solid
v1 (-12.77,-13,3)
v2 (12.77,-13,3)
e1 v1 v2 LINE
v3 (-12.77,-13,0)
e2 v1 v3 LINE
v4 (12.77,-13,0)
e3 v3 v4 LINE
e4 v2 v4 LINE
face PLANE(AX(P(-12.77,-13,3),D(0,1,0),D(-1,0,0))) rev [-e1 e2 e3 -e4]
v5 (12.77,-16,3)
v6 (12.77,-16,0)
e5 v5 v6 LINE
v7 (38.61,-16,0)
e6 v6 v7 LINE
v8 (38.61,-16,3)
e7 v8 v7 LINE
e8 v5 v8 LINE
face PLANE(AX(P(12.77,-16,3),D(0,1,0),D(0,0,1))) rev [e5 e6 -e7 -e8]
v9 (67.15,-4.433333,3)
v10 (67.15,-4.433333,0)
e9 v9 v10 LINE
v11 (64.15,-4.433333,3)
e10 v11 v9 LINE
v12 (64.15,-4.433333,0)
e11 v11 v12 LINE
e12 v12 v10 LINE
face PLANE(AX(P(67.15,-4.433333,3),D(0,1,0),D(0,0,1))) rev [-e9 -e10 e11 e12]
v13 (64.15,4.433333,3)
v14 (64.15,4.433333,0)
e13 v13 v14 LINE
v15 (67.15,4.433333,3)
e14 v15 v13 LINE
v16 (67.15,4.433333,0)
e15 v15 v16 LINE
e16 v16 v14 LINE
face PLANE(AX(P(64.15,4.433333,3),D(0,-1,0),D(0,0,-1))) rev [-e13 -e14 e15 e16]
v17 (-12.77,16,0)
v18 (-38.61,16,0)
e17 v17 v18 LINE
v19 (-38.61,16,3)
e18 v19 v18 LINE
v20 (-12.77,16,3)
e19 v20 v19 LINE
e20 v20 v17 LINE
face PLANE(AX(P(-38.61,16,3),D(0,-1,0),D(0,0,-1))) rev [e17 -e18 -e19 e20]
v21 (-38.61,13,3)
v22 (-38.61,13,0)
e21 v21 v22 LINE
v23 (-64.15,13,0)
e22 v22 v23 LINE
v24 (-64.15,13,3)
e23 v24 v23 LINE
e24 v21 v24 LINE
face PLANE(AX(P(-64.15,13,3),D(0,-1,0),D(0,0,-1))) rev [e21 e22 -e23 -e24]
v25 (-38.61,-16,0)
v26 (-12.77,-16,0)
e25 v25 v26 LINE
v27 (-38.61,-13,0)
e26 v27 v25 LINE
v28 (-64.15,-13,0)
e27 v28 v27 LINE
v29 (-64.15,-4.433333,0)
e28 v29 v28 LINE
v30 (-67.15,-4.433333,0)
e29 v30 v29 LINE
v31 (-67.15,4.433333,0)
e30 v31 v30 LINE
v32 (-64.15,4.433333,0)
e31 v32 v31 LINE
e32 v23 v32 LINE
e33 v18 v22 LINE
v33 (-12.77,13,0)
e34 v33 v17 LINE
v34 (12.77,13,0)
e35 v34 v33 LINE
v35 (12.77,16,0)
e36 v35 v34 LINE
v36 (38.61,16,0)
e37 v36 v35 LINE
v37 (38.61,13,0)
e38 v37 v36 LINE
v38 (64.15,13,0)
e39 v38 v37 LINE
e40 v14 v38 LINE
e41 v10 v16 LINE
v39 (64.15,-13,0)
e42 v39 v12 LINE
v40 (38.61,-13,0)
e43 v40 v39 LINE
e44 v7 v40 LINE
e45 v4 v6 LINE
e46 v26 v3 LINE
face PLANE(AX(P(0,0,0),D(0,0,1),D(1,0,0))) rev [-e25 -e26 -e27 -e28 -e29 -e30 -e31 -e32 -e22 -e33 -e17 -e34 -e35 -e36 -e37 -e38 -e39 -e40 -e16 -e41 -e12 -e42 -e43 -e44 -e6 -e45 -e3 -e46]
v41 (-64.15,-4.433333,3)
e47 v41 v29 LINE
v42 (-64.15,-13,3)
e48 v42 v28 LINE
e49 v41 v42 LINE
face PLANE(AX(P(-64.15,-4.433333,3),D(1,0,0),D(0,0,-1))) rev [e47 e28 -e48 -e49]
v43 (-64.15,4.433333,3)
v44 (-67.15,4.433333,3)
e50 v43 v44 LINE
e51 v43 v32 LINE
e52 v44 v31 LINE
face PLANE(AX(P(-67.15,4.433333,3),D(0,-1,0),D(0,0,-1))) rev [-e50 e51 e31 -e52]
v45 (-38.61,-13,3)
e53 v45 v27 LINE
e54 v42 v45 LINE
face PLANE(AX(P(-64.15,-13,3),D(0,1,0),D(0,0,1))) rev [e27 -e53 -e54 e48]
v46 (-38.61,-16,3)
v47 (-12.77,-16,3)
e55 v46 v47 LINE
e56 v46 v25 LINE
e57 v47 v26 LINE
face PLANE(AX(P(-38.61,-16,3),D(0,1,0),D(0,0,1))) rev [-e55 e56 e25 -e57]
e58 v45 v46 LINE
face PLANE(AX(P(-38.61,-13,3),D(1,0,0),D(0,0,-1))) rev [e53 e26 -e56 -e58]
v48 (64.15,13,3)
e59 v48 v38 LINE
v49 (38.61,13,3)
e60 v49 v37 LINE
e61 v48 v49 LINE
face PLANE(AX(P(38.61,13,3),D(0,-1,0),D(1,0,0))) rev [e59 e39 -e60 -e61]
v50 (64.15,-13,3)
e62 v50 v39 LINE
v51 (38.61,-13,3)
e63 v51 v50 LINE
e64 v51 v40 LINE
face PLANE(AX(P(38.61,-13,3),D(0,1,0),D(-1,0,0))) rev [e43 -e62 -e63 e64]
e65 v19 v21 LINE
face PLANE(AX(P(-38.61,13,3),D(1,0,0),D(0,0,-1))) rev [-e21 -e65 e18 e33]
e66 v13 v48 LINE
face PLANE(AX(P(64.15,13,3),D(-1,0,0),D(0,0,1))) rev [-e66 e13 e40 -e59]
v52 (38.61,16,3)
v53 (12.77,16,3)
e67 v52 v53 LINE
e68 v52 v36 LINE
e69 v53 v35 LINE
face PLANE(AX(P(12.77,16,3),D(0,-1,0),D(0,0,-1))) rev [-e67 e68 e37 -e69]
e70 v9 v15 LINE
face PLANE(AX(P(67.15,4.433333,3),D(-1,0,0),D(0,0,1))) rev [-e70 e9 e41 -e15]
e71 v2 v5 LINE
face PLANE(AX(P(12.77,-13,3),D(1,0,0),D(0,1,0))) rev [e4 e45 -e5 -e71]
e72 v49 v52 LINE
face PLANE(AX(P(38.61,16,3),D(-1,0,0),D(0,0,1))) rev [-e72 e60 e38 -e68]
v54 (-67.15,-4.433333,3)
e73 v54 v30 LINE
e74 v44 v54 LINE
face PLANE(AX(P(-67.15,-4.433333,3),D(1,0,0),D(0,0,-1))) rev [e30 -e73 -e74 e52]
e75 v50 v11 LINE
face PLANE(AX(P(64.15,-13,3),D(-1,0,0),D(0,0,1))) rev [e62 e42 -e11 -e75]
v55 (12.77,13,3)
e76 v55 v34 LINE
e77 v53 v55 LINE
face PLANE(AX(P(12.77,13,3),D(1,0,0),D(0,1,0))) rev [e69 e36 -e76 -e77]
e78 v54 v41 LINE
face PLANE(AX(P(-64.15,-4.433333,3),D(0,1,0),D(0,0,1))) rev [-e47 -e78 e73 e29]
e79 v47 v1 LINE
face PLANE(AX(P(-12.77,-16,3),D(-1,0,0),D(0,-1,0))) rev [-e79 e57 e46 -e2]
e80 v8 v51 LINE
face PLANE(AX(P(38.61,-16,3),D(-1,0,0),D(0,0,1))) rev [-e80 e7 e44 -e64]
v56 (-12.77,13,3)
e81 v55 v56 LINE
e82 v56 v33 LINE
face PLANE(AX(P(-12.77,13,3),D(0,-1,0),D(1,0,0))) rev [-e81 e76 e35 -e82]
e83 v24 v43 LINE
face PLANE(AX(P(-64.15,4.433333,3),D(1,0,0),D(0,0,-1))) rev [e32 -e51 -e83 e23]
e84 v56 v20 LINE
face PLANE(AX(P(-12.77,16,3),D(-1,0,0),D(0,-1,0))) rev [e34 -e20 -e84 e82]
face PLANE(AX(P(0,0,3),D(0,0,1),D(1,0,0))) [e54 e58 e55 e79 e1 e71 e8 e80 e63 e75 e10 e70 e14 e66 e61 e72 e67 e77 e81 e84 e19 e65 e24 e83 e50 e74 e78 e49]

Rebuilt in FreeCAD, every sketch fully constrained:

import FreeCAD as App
import Part
import Sketcher

V = App.Vector

doc = App.newDocument("Part")
body = doc.addObject("PartDesign::Body", "Body")

# Sketch on XY plane
sketch1 = doc.addObject("Sketcher::SketchObject", "Sketch")
body.addObject(sketch1)
sketch1.AttachmentSupport = (doc.XY_Plane, [""])
sketch1.MapMode = "FlatFace"
sketch1.addGeometry(Part.LineSegment(V(-67.15, -4.433333, 0), V(-64.15, -4.433333, 0)), False)
sketch1.addGeometry(Part.LineSegment(V(-64.15, -4.433333, 0), V(-64.15, -13, 0)), False)
sketch1.addGeometry(Part.LineSegment(V(-64.15, -13, 0), V(-38.61, -13, 0)), False)
sketch1.addGeometry(Part.LineSegment(V(-38.61, -13, 0), V(-38.61, -16, 0)), False)
sketch1.addGeometry(Part.LineSegment(V(-38.61, -16, 0), V(-12.77, -16, 0)), False)
sketch1.addGeometry(Part.LineSegment(V(-12.77, -16, 0), V(-12.77, -13, 0)), False)
sketch1.addGeometry(Part.LineSegment(V(-12.77, -13, 0), V(12.77, -13, 0)), False)
sketch1.addGeometry(Part.LineSegment(V(12.77, -13, 0), V(12.77, -16, 0)), False)
sketch1.addGeometry(Part.LineSegment(V(12.77, -16, 0), V(38.61, -16, 0)), False)
sketch1.addGeometry(Part.LineSegment(V(38.61, -16, 0), V(38.61, -13, 0)), False)
sketch1.addGeometry(Part.LineSegment(V(38.61, -13, 0), V(64.15, -13, 0)), False)
sketch1.addGeometry(Part.LineSegment(V(64.15, -13, 0), V(64.15, -4.433333, 0)), False)
sketch1.addGeometry(Part.LineSegment(V(64.15, -4.433333, 0), V(67.15, -4.433333, 0)), False)
sketch1.addGeometry(Part.LineSegment(V(67.15, -4.433333, 0), V(67.15, 4.433333, 0)), False)
sketch1.addGeometry(Part.LineSegment(V(67.15, 4.433333, 0), V(64.15, 4.433333, 0)), False)
sketch1.addGeometry(Part.LineSegment(V(64.15, 4.433333, 0), V(64.15, 13, 0)), False)
sketch1.addGeometry(Part.LineSegment(V(64.15, 13, 0), V(38.61, 13, 0)), False)
sketch1.addGeometry(Part.LineSegment(V(38.61, 13, 0), V(38.61, 16, 0)), False)
sketch1.addGeometry(Part.LineSegment(V(38.61, 16, 0), V(12.77, 16, 0)), False)
sketch1.addGeometry(Part.LineSegment(V(12.77, 16, 0), V(12.77, 13, 0)), False)
sketch1.addGeometry(Part.LineSegment(V(12.77, 13, 0), V(-12.77, 13, 0)), False)
sketch1.addGeometry(Part.LineSegment(V(-12.77, 13, 0), V(-12.77, 16, 0)), False)
sketch1.addGeometry(Part.LineSegment(V(-12.77, 16, 0), V(-38.61, 16, 0)), False)
sketch1.addGeometry(Part.LineSegment(V(-38.61, 16, 0), V(-38.61, 13, 0)), False)
sketch1.addGeometry(Part.LineSegment(V(-38.61, 13, 0), V(-64.15, 13, 0)), False)
sketch1.addGeometry(Part.LineSegment(V(-64.15, 13, 0), V(-64.15, 4.433333, 0)), False)
sketch1.addGeometry(Part.LineSegment(V(-64.15, 4.433333, 0), V(-67.15, 4.433333, 0)), False)
sketch1.addGeometry(Part.LineSegment(V(-67.15, 4.433333, 0), V(-67.15, -4.433333, 0)), False)
sketch1.addConstraint(Sketcher.Constraint("Coincident", 0, 2, 1, 1))
sketch1.addConstraint(Sketcher.Constraint("Coincident", 1, 2, 2, 1))
sketch1.addConstraint(Sketcher.Constraint("Coincident", 2, 2, 3, 1))
sketch1.addConstraint(Sketcher.Constraint("Coincident", 3, 2, 4, 1))
sketch1.addConstraint(Sketcher.Constraint("Coincident", 4, 2, 5, 1))
sketch1.addConstraint(Sketcher.Constraint("Coincident", 5, 2, 6, 1))
sketch1.addConstraint(Sketcher.Constraint("Coincident", 6, 2, 7, 1))
sketch1.addConstraint(Sketcher.Constraint("Coincident", 7, 2, 8, 1))
sketch1.addConstraint(Sketcher.Constraint("Coincident", 8, 2, 9, 1))
sketch1.addConstraint(Sketcher.Constraint("Coincident", 9, 2, 10, 1))
sketch1.addConstraint(Sketcher.Constraint("Coincident", 10, 2, 11, 1))
sketch1.addConstraint(Sketcher.Constraint("Coincident", 11, 2, 12, 1))
sketch1.addConstraint(Sketcher.Constraint("Coincident", 12, 2, 13, 1))
sketch1.addConstraint(Sketcher.Constraint("Coincident", 13, 2, 14, 1))
sketch1.addConstraint(Sketcher.Constraint("Coincident", 14, 2, 15, 1))
sketch1.addConstraint(Sketcher.Constraint("Coincident", 15, 2, 16, 1))
sketch1.addConstraint(Sketcher.Constraint("Coincident", 16, 2, 17, 1))
sketch1.addConstraint(Sketcher.Constraint("Coincident", 17, 2, 18, 1))
sketch1.addConstraint(Sketcher.Constraint("Coincident", 18, 2, 19, 1))
sketch1.addConstraint(Sketcher.Constraint("Coincident", 19, 2, 20, 1))
sketch1.addConstraint(Sketcher.Constraint("Coincident", 20, 2, 21, 1))
sketch1.addConstraint(Sketcher.Constraint("Coincident", 21, 2, 22, 1))
sketch1.addConstraint(Sketcher.Constraint("Coincident", 22, 2, 23, 1))
sketch1.addConstraint(Sketcher.Constraint("Coincident", 23, 2, 24, 1))
sketch1.addConstraint(Sketcher.Constraint("Coincident", 24, 2, 25, 1))
sketch1.addConstraint(Sketcher.Constraint("Coincident", 25, 2, 26, 1))
sketch1.addConstraint(Sketcher.Constraint("Coincident", 26, 2, 27, 1))
sketch1.addConstraint(Sketcher.Constraint("Coincident", 27, 2, 0, 1))
sketch1.addConstraint(Sketcher.Constraint("Horizontal", 0))
sketch1.addConstraint(Sketcher.Constraint("Vertical", 1))
sketch1.addConstraint(Sketcher.Constraint("Horizontal", 2))
sketch1.addConstraint(Sketcher.Constraint("Vertical", 3))
sketch1.addConstraint(Sketcher.Constraint("Horizontal", 4))
sketch1.addConstraint(Sketcher.Constraint("Vertical", 5))
sketch1.addConstraint(Sketcher.Constraint("Horizontal", 6))
sketch1.addConstraint(Sketcher.Constraint("Vertical", 7))
sketch1.addConstraint(Sketcher.Constraint("Horizontal", 8))
sketch1.addConstraint(Sketcher.Constraint("Vertical", 9))
sketch1.addConstraint(Sketcher.Constraint("Horizontal", 10))
sketch1.addConstraint(Sketcher.Constraint("Vertical", 11))
sketch1.addConstraint(Sketcher.Constraint("Horizontal", 12))
sketch1.addConstraint(Sketcher.Constraint("Vertical", 13))
sketch1.addConstraint(Sketcher.Constraint("Horizontal", 14))
sketch1.addConstraint(Sketcher.Constraint("Vertical", 15))
sketch1.addConstraint(Sketcher.Constraint("Horizontal", 16))
sketch1.addConstraint(Sketcher.Constraint("Vertical", 17))
sketch1.addConstraint(Sketcher.Constraint("Horizontal", 18))
sketch1.addConstraint(Sketcher.Constraint("Vertical", 19))
sketch1.addConstraint(Sketcher.Constraint("Horizontal", 20))
sketch1.addConstraint(Sketcher.Constraint("Vertical", 21))
sketch1.addConstraint(Sketcher.Constraint("Horizontal", 22))
sketch1.addConstraint(Sketcher.Constraint("Vertical", 23))
sketch1.addConstraint(Sketcher.Constraint("Horizontal", 24))
sketch1.addConstraint(Sketcher.Constraint("Vertical", 25))
sketch1.addConstraint(Sketcher.Constraint("Horizontal", 26))
sketch1.addConstraint(Sketcher.Constraint("Vertical", 27))
sketch1.addConstraint(Sketcher.Constraint("Symmetric", 0, 2, 14, 2, -1, 1))
sketch1.addConstraint(Sketcher.Constraint("Symmetric", 2, 2, 16, 2, -1, 1))
sketch1.addConstraint(Sketcher.Constraint("Symmetric", 4, 2, 18, 2, -1, 1))
sketch1.addConstraint(Sketcher.Constraint("Symmetric", 6, 2, 20, 2, -1, 1))
sketch1.addConstraint(Sketcher.Constraint("Symmetric", 8, 2, 22, 2, -1, 1))
sketch1.addConstraint(Sketcher.Constraint("Symmetric", 10, 2, 24, 2, -1, 1))
sketch1.addConstraint(Sketcher.Constraint("Symmetric", 12, 2, 26, 2, -1, 1))
sketch1.addConstraint(Sketcher.Constraint("Symmetric", 4, 2, 7, 2, -2))
sketch1.addConstraint(Sketcher.Constraint("Symmetric", 2, 2, 9, 2, -2))
sketch1.addConstraint(Sketcher.Constraint("Symmetric", 0, 2, 11, 2, -2))
sketch1.addConstraint(Sketcher.Constraint("Horizontal", 2, 2, 5, 2))
sketch1.addConstraint(Sketcher.Constraint("Equal", 2, 6))
sketch1.addConstraint(Sketcher.Constraint("Equal", 26, 3))
sketch1.addConstraint(Sketcher.Constraint("DistanceX", 0, 1, 0, 2, 3.0))
sketch1.addConstraint(Sketcher.Constraint("DistanceY", 1, 2, -1, 1, 13.0))
sketch1.addConstraint(Sketcher.Constraint("DistanceX", 2, 1, 2, 2, 25.54))
sketch1.addConstraint(Sketcher.Constraint("DistanceX", 4, 1, 4, 2, 25.84))
sketch1.addConstraint(Sketcher.Constraint("DistanceY", 1, 2, 1, 1, 8.566667))
pad1 = doc.addObject("PartDesign::Pad", "Pad")
body.addObject(pad1)
pad1.Profile = sketch1
pad1.Length = 3

doc.recompute()
